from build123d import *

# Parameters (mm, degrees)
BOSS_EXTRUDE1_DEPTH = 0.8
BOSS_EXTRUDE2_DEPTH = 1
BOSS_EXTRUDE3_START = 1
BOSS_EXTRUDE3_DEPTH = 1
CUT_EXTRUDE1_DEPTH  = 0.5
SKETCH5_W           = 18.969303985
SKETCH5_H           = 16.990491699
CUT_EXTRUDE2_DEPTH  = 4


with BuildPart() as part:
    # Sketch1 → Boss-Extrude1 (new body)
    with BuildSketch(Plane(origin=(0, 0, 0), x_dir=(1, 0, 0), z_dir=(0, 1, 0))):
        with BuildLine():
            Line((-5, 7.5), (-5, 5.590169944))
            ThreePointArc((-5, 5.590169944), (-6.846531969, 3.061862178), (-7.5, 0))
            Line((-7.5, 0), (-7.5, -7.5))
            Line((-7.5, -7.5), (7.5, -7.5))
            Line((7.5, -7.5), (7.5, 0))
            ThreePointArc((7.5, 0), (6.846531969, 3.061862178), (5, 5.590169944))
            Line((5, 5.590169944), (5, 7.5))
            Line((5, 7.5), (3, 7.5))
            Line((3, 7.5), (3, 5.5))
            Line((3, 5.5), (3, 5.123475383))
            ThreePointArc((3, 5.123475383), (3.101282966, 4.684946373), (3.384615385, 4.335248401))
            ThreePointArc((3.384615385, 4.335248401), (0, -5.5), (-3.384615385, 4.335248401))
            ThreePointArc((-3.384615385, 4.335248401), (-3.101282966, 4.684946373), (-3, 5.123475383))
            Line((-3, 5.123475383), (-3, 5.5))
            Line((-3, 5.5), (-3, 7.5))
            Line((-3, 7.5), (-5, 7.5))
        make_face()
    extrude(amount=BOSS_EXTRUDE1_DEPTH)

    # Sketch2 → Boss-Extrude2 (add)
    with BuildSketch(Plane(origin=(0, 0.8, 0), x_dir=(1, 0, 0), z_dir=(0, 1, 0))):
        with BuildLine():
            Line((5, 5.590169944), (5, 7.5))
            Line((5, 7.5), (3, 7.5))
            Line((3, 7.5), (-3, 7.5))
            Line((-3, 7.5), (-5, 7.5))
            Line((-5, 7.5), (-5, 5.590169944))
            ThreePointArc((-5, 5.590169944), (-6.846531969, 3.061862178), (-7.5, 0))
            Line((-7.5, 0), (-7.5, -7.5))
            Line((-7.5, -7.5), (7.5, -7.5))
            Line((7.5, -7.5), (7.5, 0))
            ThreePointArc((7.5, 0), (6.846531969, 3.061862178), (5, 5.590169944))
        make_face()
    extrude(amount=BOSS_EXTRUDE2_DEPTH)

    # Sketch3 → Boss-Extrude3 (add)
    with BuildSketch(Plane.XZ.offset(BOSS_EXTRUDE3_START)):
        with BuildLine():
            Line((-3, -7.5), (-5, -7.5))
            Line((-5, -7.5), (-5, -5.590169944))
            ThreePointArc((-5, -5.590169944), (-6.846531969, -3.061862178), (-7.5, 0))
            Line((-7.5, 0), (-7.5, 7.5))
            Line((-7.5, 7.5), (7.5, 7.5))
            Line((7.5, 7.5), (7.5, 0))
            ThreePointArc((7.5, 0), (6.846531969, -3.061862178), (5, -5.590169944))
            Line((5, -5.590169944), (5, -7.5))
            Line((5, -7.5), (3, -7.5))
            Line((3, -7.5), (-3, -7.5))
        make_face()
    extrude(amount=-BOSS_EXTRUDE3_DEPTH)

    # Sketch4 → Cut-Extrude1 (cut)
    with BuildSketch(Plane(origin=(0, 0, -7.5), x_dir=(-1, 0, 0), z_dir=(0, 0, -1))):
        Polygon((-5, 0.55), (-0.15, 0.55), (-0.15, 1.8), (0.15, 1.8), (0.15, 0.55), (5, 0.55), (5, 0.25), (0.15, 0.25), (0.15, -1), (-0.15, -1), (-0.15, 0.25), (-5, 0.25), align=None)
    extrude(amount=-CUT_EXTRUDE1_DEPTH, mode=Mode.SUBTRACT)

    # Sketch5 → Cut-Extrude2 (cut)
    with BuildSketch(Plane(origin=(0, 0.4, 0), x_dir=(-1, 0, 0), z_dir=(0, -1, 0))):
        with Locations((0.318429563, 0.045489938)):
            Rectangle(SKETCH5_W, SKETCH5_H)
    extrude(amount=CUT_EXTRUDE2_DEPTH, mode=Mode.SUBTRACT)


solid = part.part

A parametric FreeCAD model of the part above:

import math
import FreeCAD as App
import Part
import Sketcher

V = App.Vector
Q = App.Units.Quantity

doc = App.newDocument("Part")
body = doc.addObject("PartDesign::Body", "Body")

sketch1 = body.newObject("Sketcher::SketchObject", "Sketch")
sketch1.AttachmentSupport = (doc.getObject("XZ_Plane"), [""])
sketch1.MapMode = "FlatFace"
sketch1.addGeometry([
    Part.LineSegment(V(-5, -7.5, 0), V(-5, -5.59017, 0)),
    Part.ArcOfCircle(Part.Circle(V(0, 0, 0), V(0, 0, 1), 7.5), math.radians(180), math.radians(228.189685)),
    Part.LineSegment(V(-7.5, 0, 0), V(-7.5, 7.5, 0)),
    Part.LineSegment(V(-7.5, 7.5, 0), V(7.5, 7.5, 0)),
    Part.LineSegment(V(7.5, 7.5, 0), V(7.5, 0, 0)),
    Part.ArcOfCircle(Part.Circle(V(0, 0, 0), V(0, 0, 1), 7.5), math.radians(-48.189685), math.radians(0)),
    Part.LineSegment(V(5, -5.59017, 0), V(5, -7.5, 0)),
    Part.LineSegment(V(5, -7.5, 0), V(3, -7.5, 0)),
    Part.LineSegment(V(3, -7.5, 0), V(3, -5.123475, 0)),
    Part.ArcOfCircle(Part.Circle(V(4, -5.123475, 0), V(0, 0, 1), 1), math.radians(127.979872), math.radians(180)),
    Part.ArcOfCircle(Part.Circle(V(0, 0, 0), V(0, 0, 1), 5.5), math.radians(-52.020128), math.radians(232.020128)),
    Part.ArcOfCircle(Part.Circle(V(-4, -5.123475, 0), V(0, 0, 1), 1), math.radians(0), math.radians(52.020128)),
    Part.LineSegment(V(-3, -5.123475, 0), V(-3, -7.5, 0)),
    Part.LineSegment(V(-3, -7.5, 0), V(-5, -7.5, 0)),
], False)
sketch1.addConstraint([
    Sketcher.Constraint("Coincident", 0, 2, 1, 2),
    Sketcher.Constraint("Tangent", 1, 1, 2, 1),
    Sketcher.Constraint("Coincident", 2, 2, 3, 1),
    Sketcher.Constraint("Coincident", 3, 2, 4, 1),
    Sketcher.Constraint("Tangent", 4, 2, 5, 2),
    Sketcher.Constraint("Coincident", 5, 1, 6, 1),
    Sketcher.Constraint("Coincident", 6, 2, 7, 1),
    Sketcher.Constraint("Coincident", 7, 2, 8, 1),
    Sketcher.Constraint("Tangent", 8, 2, 9, 2),
    Sketcher.Constraint("Tangent", 9, 1, 10, 1),
    Sketcher.Constraint("Tangent", 10, 2, 11, 2),
    Sketcher.Constraint("Tangent", 11, 1, 12, 1),
    Sketcher.Constraint("Coincident", 12, 2, 13, 1),
    Sketcher.Constraint("Coincident", 13, 2, 0, 1),
    Sketcher.Constraint("Vertical", 0),
    Sketcher.Constraint("Vertical", 2),
    Sketcher.Constraint("Horizontal", 3),
    Sketcher.Constraint("Vertical", 4),
    Sketcher.Constraint("Vertical", 6),
    Sketcher.Constraint("Horizontal", 7),
    Sketcher.Constraint("Vertical", 8),
    Sketcher.Constraint("Vertical", 12),
    Sketcher.Constraint("Horizontal", 13),
    Sketcher.Constraint("Coincident", 1, 3, -1, 1),
    Sketcher.Constraint("Coincident", 5, 3, -1, 1),
    Sketcher.Constraint("Coincident", 10, 3, -1, 1),
    Sketcher.Constraint("Equal", 1, 5),
    Sketcher.Constraint("Equal", 9, 11),
    Sketcher.Constraint("Symmetric", 7, 2, 12, 2, -2),
    Sketcher.Constraint("Horizontal", 0, 2, 5, 1),
    Sketcher.Constraint("Radius", 9, Q("1 mm")),
    Sketcher.Constraint("Radius", 1, Q("7.5 mm")),
    Sketcher.Constraint("Radius", 10, Q("5.5 mm")),
    Sketcher.Constraint("DistanceX", 7, 2, 7, 1, Q("2 mm")),
    Sketcher.Constraint("DistanceY", 2, 1, 2, 2, Q("7.5 mm")),
    Sketcher.Constraint("DistanceX", -1, 1, 9, 3, Q("4 mm")),
    Sketcher.Constraint("DistanceY", 6, 2, -1, 1, Q("7.5 mm")),
])
pad1 = body.newObject("PartDesign::Pad", "Pad")
pad1.Profile = sketch1
pad1.Length = 0.8
pad1.Reversed = True

sketch2 = body.newObject("Sketcher::SketchObject", "Sketch001")
sketch2.AttachmentSupport = (doc.getObject("XZ_Plane"), [""])
sketch2.MapMode = "FlatFace"
sketch2.AttachmentOffset = App.Placement(V(0, 0, -0.8), App.Rotation())
sketch2.addGeometry([
    Part.LineSegment(V(5, -5.59017, 0), V(5, -7.5, 0)),
    Part.LineSegment(V(5, -7.5, 0), V(-5, -7.5, 0)),
    Part.LineSegment(V(-5, -7.5, 0), V(-5, -5.59017, 0)),
    Part.ArcOfCircle(Part.Circle(V(0, 0, 0), V(0, 0, 1), 7.5), math.radians(180), math.radians(228.189685)),
    Part.LineSegment(V(-7.5, 0, 0), V(-7.5, 7.5, 0)),
    Part.LineSegment(V(-7.5, 7.5, 0), V(7.5, 7.5, 0)),
    Part.LineSegment(V(7.5, 7.5, 0), V(7.5, 0, 0)),
    Part.ArcOfCircle(Part.Circle(V(0, 0, 0), V(0, 0, 1), 7.5), math.radians(-48.189685), math.radians(0)),
], False)
sketch2.addConstraint([
    Sketcher.Constraint("Coincident", 0, 2, 1, 1),
    Sketcher.Constraint("Coincident", 1, 2, 2, 1),
    Sketcher.Constraint("Coincident", 2, 2, 3, 2),
    Sketcher.Constraint("Tangent", 3, 1, 4, 1),
    Sketcher.Constraint("Coincident", 4, 2, 5, 1),
    Sketcher.Constraint("Coincident", 5, 2, 6, 1),
    Sketcher.Constraint("Tangent", 6, 2, 7, 2),
    Sketcher.Constraint("Coincident", 7, 1, 0, 1),
    Sketcher.Constraint("Vertical", 0),
    Sketcher.Constraint("Horizontal", 1),
    Sketcher.Constraint("Vertical", 2),
    Sketcher.Constraint("Vertical", 4),
    Sketcher.Constraint("Horizontal", 5),
    Sketcher.Constraint("Vertical", 6),
    Sketcher.Constraint("Coincident", 3, 3, -1, 1),
    Sketcher.Constraint("Coincident", 7, 3, -1, 1),
    Sketcher.Constraint("Equal", 3, 7),
    Sketcher.Constraint("Horizontal", 2, 2, 7, 1),
    Sketcher.Constraint("Radius", 3, Q("7.5 mm")),
    Sketcher.Constraint("DistanceX", 1, 2, 1, 1, Q("10 mm")),
    Sketcher.Constraint("DistanceY", 4, 1, 4, 2, Q("7.5 mm")),
    Sketcher.Constraint("DistanceY", 1, 2, 4, 2, Q("15 mm")),
])
pad2 = body.newObject("PartDesign::Pad", "Pad001")
pad2.Profile = sketch2
pad2.Length = 1
pad2.Reversed = True

sketch3 = body.newObject("Sketcher::SketchObject", "Sketch002")
sketch3.AttachmentSupport = (doc.getObject("XZ_Plane"), [""])
sketch3.MapMode = "FlatFace"
sketch3.AttachmentOffset = App.Placement(V(0, 0, 1), App.Rotation())
sketch3.addGeometry([
    Part.LineSegment(V(-5, -5.59017, 0), V(-5, -7.5, 0)),
    Part.LineSegment(V(-5, -7.5, 0), V(5, -7.5, 0)),
    Part.LineSegment(V(5, -7.5, 0), V(5, -5.59017, 0)),
    Part.ArcOfCircle(Part.Circle(V(0, 0, 0), V(0, 0, 1), 7.5), math.radians(-48.189685), math.radians(0)),
    Part.LineSegment(V(7.5, 0, 0), V(7.5, 7.5, 0)),
    Part.LineSegment(V(7.5, 7.5, 0), V(-7.5, 7.5, 0)),
    Part.LineSegment(V(-7.5, 7.5, 0), V(-7.5, 0, 0)),
    Part.ArcOfCircle(Part.Circle(V(0, 0, 0), V(0, 0, 1), 7.5), math.radians(180), math.radians(228.189685)),
], False)
sketch3.addConstraint([
    Sketcher.Constraint("Coincident", 0, 2, 1, 1),
    Sketcher.Constraint("Coincident", 1, 2, 2, 1),
    Sketcher.Constraint("Coincident", 2, 2, 3, 1),
    Sketcher.Constraint("Tangent", 3, 2, 4, 1),
    Sketcher.Constraint("Coincident", 4, 2, 5, 1),
    Sketcher.Constraint("Coincident", 5, 2, 6, 1),
    Sketcher.Constraint("Tangent", 6, 2, 7, 1),
    Sketcher.Constraint("Coincident", 7, 2, 0, 1),
    Sketcher.Constraint("Vertical", 0),
    Sketcher.Constraint("Horizontal", 1),
    Sketcher.Constraint("Vertical", 2),
    Sketcher.Constraint("Vertical", 4),
    Sketcher.Constraint("Horizontal", 5),
    Sketcher.Constraint("Vertical", 6),
    Sketcher.Constraint("Coincident", 3, 3, -1, 1),
    Sketcher.Constraint("Coincident", 7, 3, -1, 1),
    Sketcher.Constraint("Equal", 3, 7),
    Sketcher.Constraint("Horizontal", 2, 2, 7, 2),
    Sketcher.Constraint("Radius", 3, Q("7.5 mm")),
    Sketcher.Constraint("DistanceX", 1, 1, 1, 2, Q("10 mm")),
    Sketcher.Constraint("DistanceY", 4, 1, 4, 2, Q("7.5 mm")),
    Sketcher.Constraint("DistanceY", 1, 2, 4, 2, Q("15 mm")),
])
pad3 = body.newObject("PartDesign::Pad", "Pad002")
pad3.Profile = sketch3
pad3.Length = 1
pad3.Reversed = True

sketch4 = body.newObject("Sketcher::SketchObject", "Sketch003")
sketch4.AttachmentSupport = (doc.getObject("XY_Plane"), [""])
sketch4.MapMode = "FlatFace"
sketch4.AttachmentOffset = App.Placement(V(0, 0, -7.5), App.Rotation())
sketch4.addGeometry([
    Part.LineSegment(V(0.15, 0.55, 0), V(5, 0.55, 0)),
    Part.LineSegment(V(5, 0.55, 0), V(5, 0.25, 0)),
    Part.LineSegment(V(5, 0.25, 0), V(0.15, 0.25, 0)),
    Part.LineSegment(V(0.15, 0.25, 0), V(0.15, -1, 0)),
    Part.LineSegment(V(0.15, -1, 0), V(-0.15, -1, 0)),
    Part.LineSegment(V(-0.15, -1, 0), V(-0.15, 0.25, 0)),
    Part.LineSegment(V(-0.15, 0.25, 0), V(-5, 0.25, 0)),
    Part.LineSegment(V(-5, 0.25, 0), V(-5, 0.55, 0)),
    Part.LineSegment(V(-5, 0.55, 0), V(-0.15, 0.55, 0)),
    Part.LineSegment(V(-0.15, 0.55, 0), V(-0.15, 1.8, 0)),
    Part.LineSegment(V(-0.15, 1.8, 0), V(0.15, 1.8, 0)),
    Part.LineSegment(V(0.15, 1.8, 0), V(0.15, 0.55, 0)),
], False)
sketch4.addConstraint([
    Sketcher.Constraint("Coincident", 0, 2, 1, 1),
    Sketcher.Constraint("Coincident", 1, 2, 2, 1),
    Sketcher.Constraint("Coincident", 2, 2, 3, 1),
    Sketcher.Constraint("Coincident", 3, 2, 4, 1),
    Sketcher.Constraint("Coincident", 4, 2, 5, 1),
    Sketcher.Constraint("Coincident", 5, 2, 6, 1),
    Sketcher.Constraint("Coincident", 6, 2, 7, 1),
    Sketcher.Constraint("Coincident", 7, 2, 8, 1),
    Sketcher.Constraint("Coincident", 8, 2, 9, 1),
    Sketcher.Constraint("Coincident", 9, 2, 10, 1),
    Sketcher.Constraint("Coincident", 10, 2, 11, 1),
    Sketcher.Constraint("Coincident", 11, 2, 0, 1),
    Sketcher.Constraint("Horizontal", 0),
    Sketcher.Constraint("Vertical", 1),
    Sketcher.Constraint("Horizontal", 2),
    Sketcher.Constraint("Vertical", 3),
    Sketcher.Constraint("Horizontal", 4),
    Sketcher.Constraint("Vertical", 5),
    Sketcher.Constraint("Horizontal", 6),
    Sketcher.Constraint("Vertical", 7),
    Sketcher.Constraint("Horizontal", 8),
    Sketcher.Constraint("Vertical", 9),
    Sketcher.Constraint("Horizontal", 10),
    Sketcher.Constraint("Vertical", 11),
    Sketcher.Constraint("Symmetric", 2, 2, 5, 2, -2),
    Sketcher.Constraint("Symmetric", 0, 2, 7, 2, -2),
    Sketcher.Constraint("Vertical", 5, 2, 8, 2),
    Sketcher.Constraint("Vertical", 3, 2, 10, 2),
    Sketcher.Constraint("Equal", 10, 1),
    Sketcher.Constraint("Equal", 5, 9),
    Sketcher.Constraint("DistanceX", 4, 2, 4, 1, Q("0.3 mm")),
    Sketcher.Constraint("DistanceX", -1, 1, 0, 2, Q("5 mm")),
    Sketcher.Constraint("DistanceY", 3, 2, -1, 1, Q("1 mm")),
    Sketcher.Constraint("DistanceY", 3, 2, 3, 1, Q("1.25 mm")),
])
pocket1 = body.newObject("PartDesign::Pocket", "Pocket")
pocket1.Profile = sketch4
pocket1.Length = 0.5
pocket1.Reversed = True

sketch5 = body.newObject("Sketcher::SketchObject", "Sketch004")
sketch5.AttachmentSupport = (doc.getObject("XZ_Plane"), [""])
sketch5.MapMode = "FlatFace"
sketch5.AttachmentOffset = App.Placement(V(0, 0, -0.4), App.Rotation())
sketch5.addGeometry([
    Part.LineSegment(V(9.166222, -8.540736, 0), V(9.166222, 8.449756, 0)),
    Part.LineSegment(V(9.166222, 8.449756, 0), V(-9.803082, 8.449756, 0)),
    Part.LineSegment(V(-9.803082, 8.449756, 0), V(-9.803082, -8.540736, 0)),
    Part.LineSegment(V(-9.803082, -8.540736, 0), V(9.166222, -8.540736, 0)),
], False)
sketch5.addConstraint([
    Sketcher.Constraint("Coincident", 0, 2, 1, 1),
    Sketcher.Constraint("Coincident", 1, 2, 2, 1),
    Sketcher.Constraint("Coincident", 2, 2, 3, 1),
    Sketcher.Constraint("Coincident", 3, 2, 0, 1),
    Sketcher.Constraint("Vertical", 0),
    Sketcher.Constraint("Horizontal", 1),
    Sketcher.Constraint("Vertical", 2),
    Sketcher.Constraint("Horizontal", 3),
    Sketcher.Constraint("DistanceY", 0, 1, 0, 2, Q("16.990492 mm")),
    Sketcher.Constraint("DistanceX", 1, 2, 1, 1, Q("18.969304 mm")),
    Sketcher.Constraint("DistanceX", 1, 2, -1, 1, Q("9.803082 mm")),
    Sketcher.Constraint("DistanceY", -1, 1, 0, 2, Q("8.449756 mm")),
])
pocket2 = body.newObject("PartDesign::Pocket", "Pocket001")
pocket2.Profile = sketch5
pocket2.Length = 4
pocket2.Reversed = True

doc.recompute()
